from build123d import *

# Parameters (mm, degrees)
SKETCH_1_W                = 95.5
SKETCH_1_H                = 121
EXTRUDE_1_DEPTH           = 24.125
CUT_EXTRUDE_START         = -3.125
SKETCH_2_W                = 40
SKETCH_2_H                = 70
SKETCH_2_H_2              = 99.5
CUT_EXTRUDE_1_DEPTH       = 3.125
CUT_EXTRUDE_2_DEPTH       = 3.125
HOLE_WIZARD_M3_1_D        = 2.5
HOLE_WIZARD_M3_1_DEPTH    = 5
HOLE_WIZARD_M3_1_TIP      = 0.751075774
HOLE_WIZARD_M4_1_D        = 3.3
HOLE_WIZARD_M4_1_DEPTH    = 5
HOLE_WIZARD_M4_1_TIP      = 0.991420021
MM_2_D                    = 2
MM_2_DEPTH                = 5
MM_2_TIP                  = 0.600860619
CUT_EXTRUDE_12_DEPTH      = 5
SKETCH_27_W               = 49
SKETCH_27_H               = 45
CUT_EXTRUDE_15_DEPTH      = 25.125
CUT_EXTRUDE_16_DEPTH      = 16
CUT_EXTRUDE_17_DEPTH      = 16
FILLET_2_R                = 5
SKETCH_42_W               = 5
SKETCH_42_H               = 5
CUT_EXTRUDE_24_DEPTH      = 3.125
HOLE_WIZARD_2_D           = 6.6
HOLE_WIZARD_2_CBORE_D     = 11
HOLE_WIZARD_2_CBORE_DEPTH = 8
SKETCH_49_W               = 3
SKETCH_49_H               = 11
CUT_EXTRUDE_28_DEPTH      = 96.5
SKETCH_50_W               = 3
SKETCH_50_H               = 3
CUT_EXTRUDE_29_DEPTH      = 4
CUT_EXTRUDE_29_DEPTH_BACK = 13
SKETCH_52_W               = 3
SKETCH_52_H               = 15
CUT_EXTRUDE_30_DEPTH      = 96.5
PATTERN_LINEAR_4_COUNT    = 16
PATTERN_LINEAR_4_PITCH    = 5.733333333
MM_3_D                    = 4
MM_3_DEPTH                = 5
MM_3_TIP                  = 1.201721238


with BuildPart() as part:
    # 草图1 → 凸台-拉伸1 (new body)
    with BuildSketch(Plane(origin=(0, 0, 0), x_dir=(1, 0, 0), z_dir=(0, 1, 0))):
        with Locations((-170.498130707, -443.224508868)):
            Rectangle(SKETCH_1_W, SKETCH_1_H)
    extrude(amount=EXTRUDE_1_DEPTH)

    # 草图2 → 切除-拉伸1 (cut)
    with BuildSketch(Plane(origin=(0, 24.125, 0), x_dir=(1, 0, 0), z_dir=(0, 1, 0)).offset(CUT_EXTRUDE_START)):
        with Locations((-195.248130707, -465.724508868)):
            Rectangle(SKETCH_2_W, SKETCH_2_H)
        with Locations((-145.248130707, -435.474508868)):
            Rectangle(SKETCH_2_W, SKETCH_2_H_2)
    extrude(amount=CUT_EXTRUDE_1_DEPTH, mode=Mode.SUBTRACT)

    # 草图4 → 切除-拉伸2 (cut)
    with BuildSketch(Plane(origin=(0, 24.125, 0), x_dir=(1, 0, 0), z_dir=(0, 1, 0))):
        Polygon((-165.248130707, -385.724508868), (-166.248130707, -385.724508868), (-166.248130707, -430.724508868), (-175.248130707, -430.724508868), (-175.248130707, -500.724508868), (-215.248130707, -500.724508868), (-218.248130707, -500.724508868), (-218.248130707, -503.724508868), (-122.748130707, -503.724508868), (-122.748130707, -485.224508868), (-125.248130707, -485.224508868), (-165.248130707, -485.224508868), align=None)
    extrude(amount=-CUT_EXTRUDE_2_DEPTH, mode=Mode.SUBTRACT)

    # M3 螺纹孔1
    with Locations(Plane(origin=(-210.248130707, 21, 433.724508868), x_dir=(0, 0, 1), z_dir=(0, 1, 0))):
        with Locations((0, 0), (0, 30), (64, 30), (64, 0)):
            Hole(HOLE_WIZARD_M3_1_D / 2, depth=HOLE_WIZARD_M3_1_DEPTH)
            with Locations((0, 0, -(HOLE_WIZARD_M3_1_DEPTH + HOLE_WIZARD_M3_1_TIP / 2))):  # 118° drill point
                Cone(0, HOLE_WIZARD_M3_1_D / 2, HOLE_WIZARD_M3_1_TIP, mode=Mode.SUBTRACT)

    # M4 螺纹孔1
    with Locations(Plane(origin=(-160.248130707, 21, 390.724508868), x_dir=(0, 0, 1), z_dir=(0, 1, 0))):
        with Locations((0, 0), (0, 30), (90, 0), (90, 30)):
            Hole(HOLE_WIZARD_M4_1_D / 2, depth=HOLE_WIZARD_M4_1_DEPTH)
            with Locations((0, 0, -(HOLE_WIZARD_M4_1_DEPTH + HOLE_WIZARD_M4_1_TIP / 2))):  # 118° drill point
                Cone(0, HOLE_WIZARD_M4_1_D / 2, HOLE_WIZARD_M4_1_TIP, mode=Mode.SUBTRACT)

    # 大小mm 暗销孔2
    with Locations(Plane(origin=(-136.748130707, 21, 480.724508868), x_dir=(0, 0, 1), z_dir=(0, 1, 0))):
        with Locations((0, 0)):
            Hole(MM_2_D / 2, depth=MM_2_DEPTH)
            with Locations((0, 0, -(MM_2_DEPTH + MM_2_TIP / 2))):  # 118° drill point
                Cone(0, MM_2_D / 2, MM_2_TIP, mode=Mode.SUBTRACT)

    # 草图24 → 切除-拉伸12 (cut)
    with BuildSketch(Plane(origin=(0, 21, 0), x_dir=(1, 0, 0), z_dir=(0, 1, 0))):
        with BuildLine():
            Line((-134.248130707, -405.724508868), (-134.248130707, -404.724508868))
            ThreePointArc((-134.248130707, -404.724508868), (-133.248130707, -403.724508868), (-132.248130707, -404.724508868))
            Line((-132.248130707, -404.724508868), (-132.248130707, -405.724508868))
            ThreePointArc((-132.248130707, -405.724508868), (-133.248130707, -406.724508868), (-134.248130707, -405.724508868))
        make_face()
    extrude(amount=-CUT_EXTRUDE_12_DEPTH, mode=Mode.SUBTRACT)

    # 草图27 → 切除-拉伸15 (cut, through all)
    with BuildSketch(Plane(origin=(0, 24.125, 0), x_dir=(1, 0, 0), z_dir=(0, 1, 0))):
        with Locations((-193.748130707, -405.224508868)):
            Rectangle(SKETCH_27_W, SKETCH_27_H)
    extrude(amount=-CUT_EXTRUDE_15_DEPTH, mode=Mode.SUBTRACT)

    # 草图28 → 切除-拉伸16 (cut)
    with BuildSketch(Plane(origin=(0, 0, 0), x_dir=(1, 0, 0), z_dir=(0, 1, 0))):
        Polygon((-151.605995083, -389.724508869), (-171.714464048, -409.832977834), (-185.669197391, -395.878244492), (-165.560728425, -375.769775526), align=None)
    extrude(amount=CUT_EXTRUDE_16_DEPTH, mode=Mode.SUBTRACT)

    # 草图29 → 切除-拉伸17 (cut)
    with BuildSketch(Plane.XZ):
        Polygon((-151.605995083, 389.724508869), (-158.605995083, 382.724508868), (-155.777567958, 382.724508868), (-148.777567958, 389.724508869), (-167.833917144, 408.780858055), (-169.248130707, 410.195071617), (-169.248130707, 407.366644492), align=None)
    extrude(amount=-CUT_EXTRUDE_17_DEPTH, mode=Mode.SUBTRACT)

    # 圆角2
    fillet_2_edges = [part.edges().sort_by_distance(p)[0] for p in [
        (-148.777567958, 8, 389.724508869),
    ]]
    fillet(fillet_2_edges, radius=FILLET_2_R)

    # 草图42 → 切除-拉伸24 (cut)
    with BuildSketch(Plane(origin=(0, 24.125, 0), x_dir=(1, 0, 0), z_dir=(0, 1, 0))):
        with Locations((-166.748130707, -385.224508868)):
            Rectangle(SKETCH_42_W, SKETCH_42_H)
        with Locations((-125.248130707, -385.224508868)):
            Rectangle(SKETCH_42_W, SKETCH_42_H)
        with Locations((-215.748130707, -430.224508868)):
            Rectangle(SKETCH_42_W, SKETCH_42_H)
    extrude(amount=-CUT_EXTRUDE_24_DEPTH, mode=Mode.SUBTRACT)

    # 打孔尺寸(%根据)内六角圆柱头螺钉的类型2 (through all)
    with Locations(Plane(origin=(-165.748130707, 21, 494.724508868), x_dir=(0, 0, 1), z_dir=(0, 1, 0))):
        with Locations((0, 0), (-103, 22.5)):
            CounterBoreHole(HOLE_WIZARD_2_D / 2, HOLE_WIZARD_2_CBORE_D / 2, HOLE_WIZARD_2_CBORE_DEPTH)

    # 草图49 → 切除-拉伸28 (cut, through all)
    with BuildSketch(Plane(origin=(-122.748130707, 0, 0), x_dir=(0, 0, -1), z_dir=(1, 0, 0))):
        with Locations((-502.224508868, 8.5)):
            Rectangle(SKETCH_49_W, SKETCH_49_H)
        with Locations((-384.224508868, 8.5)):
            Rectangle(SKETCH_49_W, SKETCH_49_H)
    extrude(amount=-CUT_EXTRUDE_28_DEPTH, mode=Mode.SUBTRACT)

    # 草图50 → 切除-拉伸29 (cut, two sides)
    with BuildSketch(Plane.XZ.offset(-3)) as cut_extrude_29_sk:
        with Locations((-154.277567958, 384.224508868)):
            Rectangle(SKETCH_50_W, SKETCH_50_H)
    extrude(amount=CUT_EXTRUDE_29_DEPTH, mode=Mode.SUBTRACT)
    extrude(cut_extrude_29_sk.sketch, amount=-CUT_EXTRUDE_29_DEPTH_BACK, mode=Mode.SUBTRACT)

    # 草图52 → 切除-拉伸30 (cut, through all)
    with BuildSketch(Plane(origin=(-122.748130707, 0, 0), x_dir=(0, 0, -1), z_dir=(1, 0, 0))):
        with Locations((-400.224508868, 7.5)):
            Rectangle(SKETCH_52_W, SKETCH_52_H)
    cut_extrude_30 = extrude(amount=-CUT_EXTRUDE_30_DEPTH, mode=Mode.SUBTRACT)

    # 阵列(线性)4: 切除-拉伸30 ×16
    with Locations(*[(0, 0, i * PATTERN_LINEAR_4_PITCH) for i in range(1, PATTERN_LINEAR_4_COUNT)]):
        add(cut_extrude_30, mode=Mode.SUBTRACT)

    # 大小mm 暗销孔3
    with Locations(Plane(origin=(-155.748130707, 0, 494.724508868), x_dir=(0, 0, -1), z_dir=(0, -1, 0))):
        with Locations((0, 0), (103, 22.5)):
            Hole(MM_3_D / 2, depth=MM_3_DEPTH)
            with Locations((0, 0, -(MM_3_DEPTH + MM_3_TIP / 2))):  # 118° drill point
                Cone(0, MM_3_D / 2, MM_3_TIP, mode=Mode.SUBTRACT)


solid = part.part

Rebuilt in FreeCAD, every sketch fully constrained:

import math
import FreeCAD as App
import Part
import Sketcher
from FreeCAD import Vector
Q = App.Units.Quantity


def edges_at(feature, points):
    """Names of the edges that pass closest to the given points."""
    edges = feature.Shape.Edges
    near = lambda p: min(range(len(edges)), key=lambda i: edges[i].distToShape(Part.Vertex(*p))[0])
    return sorted({f"Edge{near(p) + 1}" for p in points})

doc = App.newDocument("Part")
body = doc.addObject("PartDesign::Body", "Body")

sketch1 = body.newObject("Sketcher::SketchObject", "Sketch")
sketch1.AttachmentSupport = (doc.getObject("XZ_Plane"), [""])
sketch1.MapMode = "FlatFace"
sketch1.addGeometry(Part.LineSegment(Vector(-218, 383, 0), Vector(-218, 504, 0)), False)
sketch1.addGeometry(Part.LineSegment(Vector(-218, 504, 0), Vector(-123, 504, 0)), False)
sketch1.addGeometry(Part.LineSegment(Vector(-123, 504, 0), Vector(-123, 383, 0)), False)
sketch1.addGeometry(Part.LineSegment(Vector(-123, 383, 0), Vector(-218, 383, 0)), False)
sketch1.addConstraint(Sketcher.Constraint("Coincident", 0, 2, 1, 1))
sketch1.addConstraint(Sketcher.Constraint("Coincident", 1, 2, 2, 1))
sketch1.addConstraint(Sketcher.Constraint("Coincident", 2, 2, 3, 1))
sketch1.addConstraint(Sketcher.Constraint("Coincident", 3, 2, 0, 1))
sketch1.addConstraint(Sketcher.Constraint("Vertical", 0))
sketch1.addConstraint(Sketcher.Constraint("Horizontal", 1))
sketch1.addConstraint(Sketcher.Constraint("Vertical", 2))
sketch1.addConstraint(Sketcher.Constraint("Horizontal", 3))
sketch1.addConstraint(Sketcher.Constraint("DistanceY", 0, 1, 0, 2, Q("121 mm")))
sketch1.addConstraint(Sketcher.Constraint("DistanceX", 1, 1, 1, 2, Q("95.5 mm")))
sketch1.addConstraint(Sketcher.Constraint("DistanceX", 0, 2, -1, 1, Q("218.248131 mm")))
sketch1.addConstraint(Sketcher.Constraint("DistanceY", -1, 1, 0, 2, Q("503.724509 mm")))
pad1 = body.newObject("PartDesign::Pad", "Pad")
pad1.Profile = sketch1
pad1.Length = 24.125
pad1.Reversed = True

sketch2 = body.newObject("Sketcher::SketchObject", "Sketch001")
sketch2.AttachmentSupport = (doc.getObject("XZ_Plane"), [""])
sketch2.MapMode = "FlatFace"
sketch2.AttachmentOffset = App.Placement(Vector(0, 0, -21), App.Rotation())
sketch2.addGeometry(Part.LineSegment(Vector(-215, 431, 0), Vector(-215, 501, 0)), False)
sketch2.addGeometry(Part.LineSegment(Vector(-215, 501, 0), Vector(-175, 501, 0)), False)
sketch2.addGeometry(Part.LineSegment(Vector(-175, 501, 0), Vector(-175, 431, 0)), False)
sketch2.addGeometry(Part.LineSegment(Vector(-175, 431, 0), Vector(-215, 431, 0)), False)
sketch2.addGeometry(Part.LineSegment(Vector(-165, 386, 0), Vector(-165, 485, 0)), False)
sketch2.addGeometry(Part.LineSegment(Vector(-165, 485, 0), Vector(-125, 485, 0)), False)
sketch2.addGeometry(Part.LineSegment(Vector(-125, 485, 0), Vector(-125, 386, 0)), False)
sketch2.addGeometry(Part.LineSegment(Vector(-125, 386, 0), Vector(-165, 386, 0)), False)
sketch2.addConstraint(Sketcher.Constraint("Coincident", 0, 2, 1, 1))
sketch2.addConstraint(Sketcher.Constraint("Coincident", 1, 2, 2, 1))
sketch2.addConstraint(Sketcher.Constraint("Coincident", 2, 2, 3, 1))
sketch2.addConstraint(Sketcher.Constraint("Coincident", 3, 2, 0, 1))
sketch2.addConstraint(Sketcher.Constraint("Coincident", 4, 2, 5, 1))
sketch2.addConstraint(Sketcher.Constraint("Coincident", 5, 2, 6, 1))
sketch2.addConstraint(Sketcher.Constraint("Coincident", 6, 2, 7, 1))
sketch2.addConstraint(Sketcher.Constraint("Coincident", 7, 2, 4, 1))
sketch2.addConstraint(Sketcher.Constraint("Vertical", 0))
sketch2.addConstraint(Sketcher.Constraint("Horizontal", 1))
sketch2.addConstraint(Sketcher.Constraint("Vertical", 2))
sketch2.addConstraint(Sketcher.Constraint("Horizontal", 3))
sketch2.addConstraint(Sketcher.Constraint("Vertical", 4))
sketch2.addConstraint(Sketcher.Constraint("Horizontal", 5))
sketch2.addConstraint(Sketcher.Constraint("Vertical", 6))
sketch2.addConstraint(Sketcher.Constraint("Horizontal", 7))
sketch2.addConstraint(Sketcher.Constraint("Equal", 3, 5))
sketch2.addConstraint(Sketcher.Constraint("DistanceX", 1, 1, 1, 2, Q("40 mm")))
sketch2.addConstraint(Sketcher.Constraint("DistanceY", 0, 1, 0, 2, Q("70 mm")))
sketch2.addConstraint(Sketcher.Constraint("DistanceY", 4, 1, 4, 2, Q("99.5 mm")))
sketch2.addConstraint(Sketcher.Constraint("DistanceX", 1, 2, 4, 2, Q("10 mm")))
sketch2.addConstraint(Sketcher.Constraint("DistanceY", 6, 2, 2, 2, Q("45 mm")))
sketch2.addConstraint(Sketcher.Constraint("DistanceX", 0, 2, -1, 1, Q("215.248131 mm")))
sketch2.addConstraint(Sketcher.Constraint("DistanceY", -1, 1, 0, 2, Q("500.724509 mm")))
pocket1 = body.newObject("PartDesign::Pocket", "Pocket")
pocket1.Profile = sketch2
pocket1.Length = 3.125

sketch3 = body.newObject("Sketcher::SketchObject", "Sketch002")
sketch3.AttachmentSupport = (doc.getObject("XZ_Plane"), [""])
sketch3.MapMode = "FlatFace"
sketch3.AttachmentOffset = App.Placement(Vector(0, 0, -24.125), App.Rotation())
sketch3.addGeometry(Part.LineSegment(Vector(-165.2, 385.7, 0), Vector(-166.2, 385.7, 0)), False)
sketch3.addGeometry(Part.LineSegment(Vector(-166.2, 385.7, 0), Vector(-166.2, 430.7, 0)), False)
sketch3.addGeometry(Part.LineSegment(Vector(-166.2, 430.7, 0), Vector(-175.2, 430.7, 0)), False)
sketch3.addGeometry(Part.LineSegment(Vector(-175.2, 430.7, 0), Vector(-175.2, 500.7, 0)), False)
sketch3.addGeometry(Part.LineSegment(Vector(-175.2, 500.7, 0), Vector(-218.2, 500.7, 0)), False)
sketch3.addGeometry(Part.LineSegment(Vector(-218.2, 500.7, 0), Vector(-218.2, 503.7, 0)), False)
sketch3.addGeometry(Part.LineSegment(Vector(-218.2, 503.7, 0), Vector(-122.7, 503.7, 0)), False)
sketch3.addGeometry(Part.LineSegment(Vector(-122.7, 503.7, 0), Vector(-122.7, 485.2, 0)), False)
sketch3.addGeometry(Part.LineSegment(Vector(-122.7, 485.2, 0), Vector(-165.2, 485.2, 0)), False)
sketch3.addGeometry(Part.LineSegment(Vector(-165.2, 485.2, 0), Vector(-165.2, 385.7, 0)), False)
sketch3.addConstraint(Sketcher.Constraint("Coincident", 0, 2, 1, 1))
sketch3.addConstraint(Sketcher.Constraint("Coincident", 1, 2, 2, 1))
sketch3.addConstraint(Sketcher.Constraint("Coincident", 2, 2, 3, 1))
sketch3.addConstraint(Sketcher.Constraint("Coincident", 3, 2, 4, 1))
sketch3.addConstraint(Sketcher.Constraint("Coincident", 4, 2, 5, 1))
sketch3.addConstraint(Sketcher.Constraint("Coincident", 5, 2, 6, 1))
sketch3.addConstraint(Sketcher.Constraint("Coincident", 6, 2, 7, 1))
sketch3.addConstraint(Sketcher.Constraint("Coincident", 7, 2, 8, 1))
sketch3.addConstraint(Sketcher.Constraint("Coincident", 8, 2, 9, 1))
sketch3.addConstraint(Sketcher.Constraint("Coincident", 9, 2, 0, 1))
sketch3.addConstraint(Sketcher.Constraint("Horizontal", 0))
sketch3.addConstraint(Sketcher.Constraint("Vertical", 1))
sketch3.addConstraint(Sketcher.Constraint("Horizontal", 2))
sketch3.addConstraint(Sketcher.Constraint("Vertical", 3))
sketch3.addConstraint(Sketcher.Constraint("Horizontal", 4))
sketch3.addConstraint(Sketcher.Constraint("Vertical", 5))
sketch3.addConstraint(Sketcher.Constraint("Horizontal", 6))
sketch3.addConstraint(Sketcher.Constraint("Vertical", 7))
sketch3.addConstraint(Sketcher.Constraint("Horizontal", 8))
sketch3.addConstraint(Sketcher.Constraint("Vertical", 9))
sketch3.addConstraint(Sketcher.Constraint("DistanceX", 0, 2, 0, 1, Q("1 mm")))
sketch3.addConstraint(Sketcher.Constraint("DistanceX", 2, 2, 2, 1, Q("9 mm")))
sketch3.addConstraint(Sketcher.Constraint("DistanceX", 4, 2, 4, 1, Q("43 mm")))
sketch3.addConstraint(Sketcher.Constraint("DistanceY", 1, 1, 1, 2, Q("45 mm")))
sketch3.addConstraint(Sketcher.Constraint("DistanceY", 3, 1, 3, 2, Q("70 mm")))
sketch3.addConstraint(Sketcher.Constraint("DistanceY", 5, 1, 5, 2, Q("3 mm")))
sketch3.addConstraint(Sketcher.Constraint("DistanceX", 6, 1, 6, 2, Q("95.5 mm")))
sketch3.addConstraint(Sketcher.Constraint("DistanceY", 7, 2, 7, 1, Q("18.5 mm")))
sketch3.addConstraint(Sketcher.Constraint("DistanceX", 0, 2, -1, 1, Q("166.248131 mm")))
sketch3.addConstraint(Sketcher.Constraint("DistanceY", -1, 1, 0, 2, Q("385.724509 mm")))
pocket2 = body.newObject("PartDesign::Pocket", "Pocket001")
pocket2.Profile = sketch3
pocket2.Length = 3.125
pocket2.Reversed = True

sketch4 = body.newObject("Sketcher::SketchObject", "Sketch003")
sketch4.AttachmentSupport = (doc.getObject("XZ_Plane"), [""])
sketch4.MapMode = "FlatFace"
sketch4.AttachmentOffset = App.Placement(Vector(0, 0, -21), App.Rotation())
sketch4.addGeometry(Part.Circle(Vector(-210.2, 433.7, 0), Vector(0, 0, 1), 1.2), False)
sketch4.addGeometry(Part.Circle(Vector(-180.2, 433.7, 0), Vector(0, 0, 1), 1.2), False)
sketch4.addGeometry(Part.Circle(Vector(-180.2, 497.7, 0), Vector(0, 0, 1), 1.2), False)
sketch4.addGeometry(Part.Circle(Vector(-210.2, 497.7, 0), Vector(0, 0, 1), 1.2), False)
sketch4.addConstraint(Sketcher.Constraint("Equal", 0, 1))
sketch4.addConstraint(Sketcher.Constraint("Equal", 1, 2))
sketch4.addConstraint(Sketcher.Constraint("Equal", 2, 3))
sketch4.addConstraint(Sketcher.Constraint("Horizontal", 0, 3, 1, 3))
sketch4.addConstraint(Sketcher.Constraint("Horizontal", 2, 3, 3, 3))
sketch4.addConstraint(Sketcher.Constraint("Vertical", 1, 3, 2, 3))
sketch4.addConstraint(Sketcher.Constraint("Vertical", 0, 3, 3, 3))
sketch4.addConstraint(Sketcher.Constraint("Diameter", 0, Q("2.5 mm")))
sketch4.addConstraint(Sketcher.Constraint("DistanceX", 0, 3, 1, 3, Q("30 mm")))
sketch4.addConstraint(Sketcher.Constraint("DistanceY", 1, 3, 2, 3, Q("64 mm")))
sketch4.addConstraint(Sketcher.Constraint("DistanceX", 0, 3, -1, 1, Q("210.248131 mm")))
sketch4.addConstraint(Sketcher.Constraint("DistanceY", -1, 1, 0, 3, Q("433.724509 mm")))
doc.recompute()
hole = body.newObject("PartDesign::Hole", "Hole")
hole.Profile = sketch4
hole.ThreadType = "None"
hole.Diameter = 2.5
hole.DepthType = "Dimension"
hole.Depth = 5
hole.DrillPoint = "Angled"
hole.DrillPointAngle = 118
hole.Reversed = True

sketch5 = body.newObject("Sketcher::SketchObject", "Sketch004")
sketch5.AttachmentSupport = (doc.getObject("XZ_Plane"), [""])
sketch5.MapMode = "FlatFace"
sketch5.AttachmentOffset = App.Placement(Vector(0, 0, -21), App.Rotation())
sketch5.addGeometry(Part.Circle(Vector(-160.2, 390.7, 0), Vector(0, 0, 1), 1.6), False)
sketch5.addGeometry(Part.Circle(Vector(-130.2, 390.7, 0), Vector(0, 0, 1), 1.6), False)
sketch5.addGeometry(Part.Circle(Vector(-160.2, 480.7, 0), Vector(0, 0, 1), 1.6), False)
sketch5.addGeometry(Part.Circle(Vector(-130.2, 480.7, 0), Vector(0, 0, 1), 1.6), False)
sketch5.addConstraint(Sketcher.Constraint("Equal", 0, 1))
sketch5.addConstraint(Sketcher.Constraint("Equal", 1, 2))
sketch5.addConstraint(Sketcher.Constraint("Equal", 2, 3))
sketch5.addConstraint(Sketcher.Constraint("Horizontal", 0, 3, 1, 3))
sketch5.addConstraint(Sketcher.Constraint("Horizontal", 2, 3, 3, 3))
sketch5.addConstraint(Sketcher.Constraint("Vertical", 0, 3, 2, 3))
sketch5.addConstraint(Sketcher.Constraint("Vertical", 1, 3, 3, 3))
sketch5.addConstraint(Sketcher.Constraint("Diameter", 0, Q("3.3 mm")))
sketch5.addConstraint(Sketcher.Constraint("DistanceX", 0, 3, 1, 3, Q("30 mm")))
sketch5.addConstraint(Sketcher.Constraint("DistanceY", 0, 3, 2, 3, Q("90 mm")))
sketch5.addConstraint(Sketcher.Constraint("DistanceX", 0, 3, -1, 1, Q("160.248131 mm")))
sketch5.addConstraint(Sketcher.Constraint("DistanceY", -1, 1, 0, 3, Q("390.724509 mm")))
doc.recompute()
hole2 = body.newObject("PartDesign::Hole", "Hole001")
hole2.Profile = sketch5
hole2.ThreadType = "None"
hole2.Diameter = 3.3
hole2.DepthType = "Dimension"
hole2.Depth = 5
hole2.DrillPoint = "Angled"
hole2.DrillPointAngle = 118
hole2.Reversed = True

sketch6 = body.newObject("Sketcher::SketchObject", "Sketch005")
sketch6.AttachmentSupport = (doc.getObject("XZ_Plane"), [""])
sketch6.MapMode = "FlatFace"
sketch6.AttachmentOffset = App.Placement(Vector(0, 0, -21), App.Rotation())
sketch6.addGeometry(Part.Circle(Vector(-136.7, 480.7, 0), Vector(0, 0, 1), 1), False)
sketch6.addConstraint(Sketcher.Constraint("Diameter", 0, Q("2 mm")))
sketch6.addConstraint(Sketcher.Constraint("DistanceX", 0, 3, -1, 1, Q("136.748131 mm")))
sketch6.addConstraint(Sketcher.Constraint("DistanceY", -1, 1, 0, 3, Q("480.724509 mm")))
doc.recompute()
hole3 = body.newObject("PartDesign::Hole", "Hole002")
hole3.Profile = sketch6
hole3.ThreadType = "None"
hole3.Diameter = 2
hole3.DepthType = "Dimension"
hole3.Depth = 5
hole3.DrillPoint = "Angled"
hole3.DrillPointAngle = 118
hole3.Reversed = True

sketch7 = body.newObject("Sketcher::SketchObject", "Sketch006")
sketch7.AttachmentSupport = (doc.getObject("XZ_Plane"), [""])
sketch7.MapMode = "FlatFace"
sketch7.AttachmentOffset = App.Placement(Vector(0, 0, -21), App.Rotation())
sketch7.addGeometry(Part.LineSegment(Vector(-134.2, 404.7, 0), Vector(-134.2, 405.7, 0)), False)
sketch7.addGeometry(Part.ArcOfCircle(Part.Circle(Vector(-133.2, 405.7, 0), Vector(0, 0, 1), 1), math.radians(0), math.radians(180)), False)
sketch7.addGeometry(Part.LineSegment(Vector(-132.2, 405.7, 0), Vector(-132.2, 404.7, 0)), False)
sketch7.addGeometry(Part.ArcOfCircle(Part.Circle(Vector(-133.2, 404.7, 0), Vector(0, 0, 1), 1), math.radians(180), math.radians(360)), False)
sketch7.addConstraint(Sketcher.Constraint("Tangent", 0, 2, 1, 2))
sketch7.addConstraint(Sketcher.Constraint("Tangent", 1, 1, 2, 1))
sketch7.addConstraint(Sketcher.Constraint("Tangent", 2, 2, 3, 2))
sketch7.addConstraint(Sketcher.Constraint("Tangent", 3, 1, 0, 1))
sketch7.addConstraint(Sketcher.Constraint("Vertical", 0))
sketch7.addConstraint(Sketcher.Constraint("Vertical", 2))
sketch7.addConstraint(Sketcher.Constraint("Radius", 1, Q("1 mm")))
sketch7.addConstraint(Sketcher.Constraint("DistanceY", 0, 1, 0, 2, Q("1 mm")))
sketch7.addConstraint(Sketcher.Constraint("DistanceX", 1, 3, -1, 1, Q("133.248131 mm")))
sketch7.addConstraint(Sketcher.Constraint("DistanceY", -1, 1, 1, 3, Q("405.724509 mm")))
pocket3 = body.newObject("PartDesign::Pocket", "Pocket002")
pocket3.Profile = sketch7
pocket3.Length = 5
pocket3.Reversed = True

sketch8 = body.newObject("Sketcher::SketchObject", "Sketch007")
sketch8.AttachmentSupport = (doc.getObject("XZ_Plane"), [""])
sketch8.MapMode = "FlatFace"
sketch8.AttachmentOffset = App.Placement(Vector(0, 0, -24.125), App.Rotation())
sketch8.addGeometry(Part.LineSegment(Vector(-218, 383, 0), Vector(-218, 428, 0)), False)
sketch8.addGeometry(Part.LineSegment(Vector(-218, 428, 0), Vector(-169, 428, 0)), False)
sketch8.addGeometry(Part.LineSegment(Vector(-169, 428, 0), Vector(-169, 383, 0)), False)
sketch8.addGeometry(Part.LineSegment(Vector(-169, 383, 0), Vector(-218, 383, 0)), False)
sketch8.addConstraint(Sketcher.Constraint("Coincident", 0, 2, 1, 1))
sketch8.addConstraint(Sketcher.Constraint("Coincident", 1, 2, 2, 1))
sketch8.addConstraint(Sketcher.Constraint("Coincident", 2, 2, 3, 1))
sketch8.addConstraint(Sketcher.Constraint("Coincident", 3, 2, 0, 1))
sketch8.addConstraint(Sketcher.Constraint("Vertical", 0))
sketch8.addConstraint(Sketcher.Constraint("Horizontal", 1))
sketch8.addConstraint(Sketcher.Constraint("Vertical", 2))
sketch8.addConstraint(Sketcher.Constraint("Horizontal", 3))
sketch8.addConstraint(Sketcher.Constraint("DistanceX", 1, 1, 1, 2, Q("49 mm")))
sketch8.addConstraint(Sketcher.Constraint("DistanceY", 0, 1, 0, 2, Q("45 mm")))
sketch8.addConstraint(Sketcher.Constraint("DistanceX", 0, 2, -1, 1, Q("218.248131 mm")))
sketch8.addConstraint(Sketcher.Constraint("DistanceY", -1, 1, 0, 2, Q("427.724509 mm")))
pocket4 = body.newObject("PartDesign::Pocket", "Pocket003")
pocket4.Profile = sketch8
pocket4.Type = "ThroughAll"
pocket4.Reversed = True

sketch9 = body.newObject("Sketcher::SketchObject", "Sketch008")
sketch9.AttachmentSupport = (doc.getObject("XZ_Plane"), [""])
sketch9.MapMode = "FlatFace"
sketch9.addGeometry(Part.LineSegment(Vector(-172, 410, 0), Vector(-152, 390, 0)), False)
sketch9.addGeometry(Part.LineSegment(Vector(-152, 390, 0), Vector(-166, 376, 0)), False)
sketch9.addGeometry(Part.LineSegment(Vector(-166, 376, 0), Vector(-186, 396, 0)), False)
sketch9.addGeometry(Part.LineSegment(Vector(-186, 396, 0), Vector(-172, 410, 0)), False)
sketch9.addConstraint(Sketcher.Constraint("Coincident", 0, 2, 1, 1))
sketch9.addConstraint(Sketcher.Constraint("Coincident", 1, 2, 2, 1))
sketch9.addConstraint(Sketcher.Constraint("Coincident", 2, 2, 3, 1))
sketch9.addConstraint(Sketcher.Constraint("Coincident", 3, 2, 0, 1))
sketch9.addConstraint(Sketcher.Constraint("Perpendicular", 0, 1))
sketch9.addConstraint(Sketcher.Constraint("Perpendicular", 1, 2))
sketch9.addConstraint(Sketcher.Constraint("Perpendicular", 2, 3))
sketch9.addConstraint(Sketcher.Constraint("Angle", 0, Q("-45 deg")))
sketch9.addConstraint(Sketcher.Constraint("Distance", 0, Q("28.43767 mm")))
sketch9.addConstraint(Sketcher.Constraint("DistanceY", -1, 1, 0, 2, Q("389.724509 mm")))
sketch9.addConstraint(Sketcher.Constraint("DistanceX", 1, 2, -1, 1, Q("165.560728 mm")))
sketch9.addConstraint(Sketcher.Constraint("Distance", 1, Q("19.734973 mm")))
pocket5 = body.newObject("PartDesign::Pocket", "Pocket004")
pocket5.Profile = sketch9
pocket5.Length = 16

sketch10 = body.newObject("Sketcher::SketchObject", "Sketch009")
sketch10.AttachmentSupport = (doc.getObject("XZ_Plane"), [""])
sketch10.MapMode = "FlatFace"
sketch10.addGeometry(Part.LineSegment(Vector(-151.6, 389.7, 0), Vector(-158.6, 382.7, 0)), False)
sketch10.addGeometry(Part.LineSegment(Vector(-158.6, 382.7, 0), Vector(-155.8, 382.7, 0)), False)
sketch10.addGeometry(Part.LineSegment(Vector(-155.8, 382.7, 0), Vector(-148.8, 389.7, 0)), False)
sketch10.addGeometry(Part.LineSegment(Vector(-148.8, 389.7, 0), Vector(-167.8, 408.8, 0)), False)
sketch10.addGeometry(Part.LineSegment(Vector(-167.8, 408.8, 0), Vector(-169.2, 410.2, 0)), False)
sketch10.addGeometry(Part.LineSegment(Vector(-169.2, 410.2, 0), Vector(-169.2, 407.4, 0)), False)
sketch10.addGeometry(Part.LineSegment(Vector(-169.2, 407.4, 0), Vector(-151.6, 389.7, 0)), False)
sketch10.addConstraint(Sketcher.Constraint("Coincident", 0, 2, 1, 1))
sketch10.addConstraint(Sketcher.Constraint("Coincident", 1, 2, 2, 1))
sketch10.addConstraint(Sketcher.Constraint("Coincident", 2, 2, 3, 1))
sketch10.addConstraint(Sketcher.Constraint("Coincident", 3, 2, 4, 1))
sketch10.addConstraint(Sketcher.Constraint("Coincident", 4, 2, 5, 1))
sketch10.addConstraint(Sketcher.Constraint("Coincident", 5, 2, 6, 1))
sketch10.addConstraint(Sketcher.Constraint("Coincident", 6, 2, 0, 1))
sketch10.addConstraint(Sketcher.Constraint("Horizontal", 1))
sketch10.addConstraint(Sketcher.Constraint("Vertical", 5))
sketch10.addConstraint(Sketcher.Constraint("Parallel", 0, 2))
sketch10.addConstraint(Sketcher.Constraint("Perpendicular", 2, 3))
sketch10.addConstraint(Sketcher.Constraint("Parallel", 3, 4))
sketch10.addConstraint(Sketcher.Constraint("Parallel", 4, 6))
sketch10.addConstraint(Sketcher.Constraint("Horizontal", 2, 2, 6, 2))
sketch10.addConstraint(Sketcher.Constraint("Equal", 1, 5))
sketch10.addConstraint(Sketcher.Constraint("Distance", 4, Q("2 mm")))
sketch10.addConstraint(Sketcher.Constraint("DistanceX", 1, 2, 2, 2, Q("7 mm")))
sketch10.addConstraint(Sketcher.Constraint("DistanceX", 1, 1, 1, 2, Q("2.828427 mm")))
sketch10.addConstraint(Sketcher.Constraint("DistanceY", -1, 1, 0, 2, Q("382.724509 mm")))
sketch10.addConstraint(Sketcher.Constraint("DistanceY", -1, 1, 3, 2, Q("408.780858 mm")))
sketch10.addConstraint(Sketcher.Constraint("DistanceX", 4, 2, -1, 1, Q("169.248131 mm")))
pocket6 = body.newObject("PartDesign::Pocket", "Pocket005")
pocket6.Profile = sketch10
pocket6.Length = 16
doc.recompute()

fillet = body.newObject("PartDesign::Fillet", "Fillet")
fillet.Base = (pocket6, edges_at(pocket6, [(-148.778, 8, 389.725)]))
fillet.Radius = 5

sketch11 = body.newObject("Sketcher::SketchObject", "Sketch010")
sketch11.AttachmentSupport = (doc.getObject("XZ_Plane"), [""])
sketch11.MapMode = "FlatFace"
sketch11.AttachmentOffset = App.Placement(Vector(0, 0, -24.125), App.Rotation())
sketch11.addGeometry(Part.LineSegment(Vector(-169, 383, 0), Vector(-169, 388, 0)), False)
sketch11.addGeometry(Part.LineSegment(Vector(-169, 388, 0), Vector(-164, 388, 0)), False)
sketch11.addGeometry(Part.LineSegment(Vector(-164, 388, 0), Vector(-164, 383, 0)), False)
sketch11.addGeometry(Part.LineSegment(Vector(-164, 383, 0), Vector(-169, 383, 0)), False)
sketch11.addGeometry(Part.LineSegment(Vector(-128, 383, 0), Vector(-128, 388, 0)), False)
sketch11.addGeometry(Part.LineSegment(Vector(-128, 388, 0), Vector(-123, 388, 0)), False)
sketch11.addGeometry(Part.LineSegment(Vector(-123, 388, 0), Vector(-123, 383, 0)), False)
sketch11.addGeometry(Part.LineSegment(Vector(-123, 383, 0), Vector(-128, 383, 0)), False)
sketch11.addGeometry(Part.LineSegment(Vector(-218, 428, 0), Vector(-218, 433, 0)), False)
sketch11.addGeometry(Part.LineSegment(Vector(-218, 433, 0), Vector(-213, 433, 0)), False)
sketch11.addGeometry(Part.LineSegment(Vector(-213, 433, 0), Vector(-213, 428, 0)), False)
sketch11.addGeometry(Part.LineSegment(Vector(-213, 428, 0), Vector(-218, 428, 0)), False)
sketch11.addConstraint(Sketcher.Constraint("Coincident", 0, 2, 1, 1))
sketch11.addConstraint(Sketcher.Constraint("Coincident", 1, 2, 2, 1))
sketch11.addConstraint(Sketcher.Constraint("Coincident", 2, 2, 3, 1))
sketch11.addConstraint(Sketcher.Constraint("Coincident", 3, 2, 0, 1))
sketch11.addConstraint(Sketcher.Constraint("Coincident", 4, 2, 5, 1))
sketch11.addConstraint(Sketcher.Constraint("Coincident", 5, 2, 6, 1))
sketch11.addConstraint(Sketcher.Constraint("Coincident", 6, 2, 7, 1))
sketch11.addConstraint(Sketcher.Constraint("Coincident", 7, 2, 4, 1))
sketch11.addConstraint(Sketcher.Constraint("Coincident", 8, 2, 9, 1))
sketch11.addConstraint(Sketcher.Constraint("Coincident", 9, 2, 10, 1))
sketch11.addConstraint(Sketcher.Constraint("Coincident", 10, 2, 11, 1))
sketch11.addConstraint(Sketcher.Constraint("Coincident", 11, 2, 8, 1))
sketch11.addConstraint(Sketcher.Constraint("Vertical", 0))
sketch11.addConstraint(Sketcher.Constraint("Horizontal", 1))
sketch11.addConstraint(Sketcher.Constraint("Vertical", 2))
sketch11.addConstraint(Sketcher.Constraint("Horizontal", 3))
sketch11.addConstraint(Sketcher.Constraint("Vertical", 4))
sketch11.addConstraint(Sketcher.Constraint("Horizontal", 5))
sketch11.addConstraint(Sketcher.Constraint("Vertical", 6))
sketch11.addConstraint(Sketcher.Constraint("Horizontal", 7))
sketch11.addConstraint(Sketcher.Constraint("Vertical", 8))
sketch11.addConstraint(Sketcher.Constraint("Horizontal", 9))
sketch11.addConstraint(Sketcher.Constraint("Vertical", 10))
sketch11.addConstraint(Sketcher.Constraint("Horizontal", 11))
sketch11.addConstraint(Sketcher.Constraint("Horizontal", 1, 2, 4, 2))
sketch11.addConstraint(Sketcher.Constraint("Horizontal", 3, 2, 6, 2))
sketch11.addConstraint(Sketcher.Constraint("Equal", 3, 5))
sketch11.addConstraint(Sketcher.Constraint("Equal", 7, 9))
sketch11.addConstraint(Sketcher.Constraint("Equal", 11, 0))
sketch11.addConstraint(Sketcher.Constraint("Equal", 6, 8))
sketch11.addConstraint(Sketcher.Constraint("DistanceX", 1, 1, 1, 2, Q("5 mm")))
sketch11.addConstraint(Sketcher.Constraint("DistanceX", 8, 2, 0, 2, Q("49 mm")))
sketch11.addConstraint(Sketcher.Constraint("DistanceY", 0, 2, 8, 2, Q("45 mm")))
sketch11.addConstraint(Sketcher.Constraint("DistanceX", 1, 2, 4, 2, Q("36.5 mm")))
sketch11.addConstraint(Sketcher.Constraint("DistanceX", 0, 2, -1, 1, Q("169.248131 mm")))
sketch11.addConstraint(Sketcher.Constraint("DistanceY", -1, 1, 0, 2, Q("387.724509 mm")))
pocket7 = body.newObject("PartDesign::Pocket", "Pocket006")
pocket7.Profile = sketch11
pocket7.Length = 3.125
pocket7.Reversed = True

sketch12 = body.newObject("Sketcher::SketchObject", "Sketch011")
sketch12.AttachmentSupport = (doc.getObject("XZ_Plane"), [""])
sketch12.MapMode = "FlatFace"
sketch12.AttachmentOffset = App.Placement(Vector(0, 0, -21), App.Rotation())
sketch12.addGeometry(Part.Circle(Vector(-165.7, 494.7, 0), Vector(0, 0, 1), 3.3), False)
sketch12.addGeometry(Part.Circle(Vector(-143.2, 391.7, 0), Vector(0, 0, 1), 3.3), False)
sketch12.addConstraint(Sketcher.Constraint("Equal", 0, 1))
sketch12.addConstraint(Sketcher.Constraint("Diameter", 0, Q("6.6 mm")))
sketch12.addConstraint(Sketcher.Constraint("DistanceY", 1, 3, 0, 3, Q("103 mm")))
sketch12.addConstraint(Sketcher.Constraint("DistanceX", 0, 3, 1, 3, Q("22.5 mm")))
sketch12.addConstraint(Sketcher.Constraint("DistanceX", 0, 3, -1, 1, Q("165.748131 mm")))
sketch12.addConstraint(Sketcher.Constraint("DistanceY", -1, 1, 0, 3, Q("494.724509 mm")))
doc.recompute()
hole4 = body.newObject("PartDesign::Hole", "Hole003")
hole4.Profile = sketch12
hole4.ThreadType = "None"
hole4.Diameter = 6.6
hole4.DepthType = "ThroughAll"
hole4.HoleCutType = "Counterbore"
hole4.HoleCutDiameter = 11
hole4.HoleCutDepth = 8
hole4.Reversed = True

sketch13 = body.newObject("Sketcher::SketchObject", "Sketch012")
sketch13.AttachmentSupport = (doc.getObject("YZ_Plane"), [""])
sketch13.MapMode = "FlatFace"
sketch13.AttachmentOffset = App.Placement(Vector(0, 0, -122.748131), App.Rotation())
sketch13.addGeometry(Part.LineSegment(Vector(14, 503.7, 0), Vector(3, 503.7, 0)), False)
sketch13.addGeometry(Part.LineSegment(Vector(3, 503.7, 0), Vector(3, 500.7, 0)), False)
sketch13.addGeometry(Part.LineSegment(Vector(3, 500.7, 0), Vector(14, 500.7, 0)), False)
sketch13.addGeometry(Part.LineSegment(Vector(14, 500.7, 0), Vector(14, 503.7, 0)), False)
sketch13.addGeometry(Part.LineSegment(Vector(14, 385.7, 0), Vector(3, 385.7, 0)), False)
sketch13.addGeometry(Part.LineSegment(Vector(3, 385.7, 0), Vector(3, 382.7, 0)), False)
sketch13.addGeometry(Part.LineSegment(Vector(3, 382.7, 0), Vector(14, 382.7, 0)), False)
sketch13.addGeometry(Part.LineSegment(Vector(14, 382.7, 0), Vector(14, 385.7, 0)), False)
sketch13.addConstraint(Sketcher.Constraint("Coincident", 0, 2, 1, 1))
sketch13.addConstraint(Sketcher.Constraint("Coincident", 1, 2, 2, 1))
sketch13.addConstraint(Sketcher.Constraint("Coincident", 2, 2, 3, 1))
sketch13.addConstraint(Sketcher.Constraint("Coincident", 3, 2, 0, 1))
sketch13.addConstraint(Sketcher.Constraint("Coincident", 4, 2, 5, 1))
sketch13.addConstraint(Sketcher.Constraint("Coincident", 5, 2, 6, 1))
sketch13.addConstraint(Sketcher.Constraint("Coincident", 6, 2, 7, 1))
sketch13.addConstraint(Sketcher.Constraint("Coincident", 7, 2, 4, 1))
sketch13.addConstraint(Sketcher.Constraint("Horizontal", 0))
sketch13.addConstraint(Sketcher.Constraint("Vertical", 1))
sketch13.addConstraint(Sketcher.Constraint("Horizontal", 2))
sketch13.addConstraint(Sketcher.Constraint("Vertical", 3))
sketch13.addConstraint(Sketcher.Constraint("Horizontal", 4))
sketch13.addConstraint(Sketcher.Constraint("Vertical", 5))
sketch13.addConstraint(Sketcher.Constraint("Horizontal", 6))
sketch13.addConstraint(Sketcher.Constraint("Vertical", 7))
sketch13.addConstraint(Sketcher.Constraint("Vertical", 1, 2, 4, 2))
sketch13.addConstraint(Sketcher.Constraint("Vertical", 3, 2, 6, 2))
sketch13.addConstraint(Sketcher.Constraint("Equal", 3, 5))
sketch13.addConstraint(Sketcher.Constraint("DistanceX", 0, 2, 0, 1, Q("11 mm")))
sketch13.addConstraint(Sketcher.Constraint("DistanceY", 1, 2, 1, 1, Q("3 mm")))
sketch13.addConstraint(Sketcher.Constraint("DistanceX", -1, 1, 0, 2, Q("3 mm")))
sketch13.addConstraint(Sketcher.Constraint("DistanceY", 4, 2, 1, 2, Q("115 mm")))
sketch13.addConstraint(Sketcher.Constraint("DistanceY", -1, 1, 0, 2, Q("503.724509 mm")))
pocket8 = body.newObject("PartDesign::Pocket", "Pocket007")
pocket8.Profile = sketch13
pocket8.Type = "ThroughAll"

sketch14 = body.newObject("Sketcher::SketchObject", "Sketch013")
sketch14.AttachmentSupport = (doc.getObject("XZ_Plane"), [""])
sketch14.MapMode = "FlatFace"
sketch14.AttachmentOffset = App.Placement(Vector(0, 0, -3), App.Rotation())
sketch14.addGeometry(Part.LineSegment(Vector(-155.8, 385.7, 0), Vector(-155.8, 382.7, 0)), False)
sketch14.addGeometry(Part.LineSegment(Vector(-155.8, 382.7, 0), Vector(-152.8, 382.7, 0)), False)
sketch14.addGeometry(Part.LineSegment(Vector(-152.8, 382.7, 0), Vector(-152.8, 385.7, 0)), False)
sketch14.addGeometry(Part.LineSegment(Vector(-152.8, 385.7, 0), Vector(-155.8, 385.7, 0)), False)
sketch14.addConstraint(Sketcher.Constraint("Coincident", 0, 2, 1, 1))
sketch14.addConstraint(Sketcher.Constraint("Coincident", 1, 2, 2, 1))
sketch14.addConstraint(Sketcher.Constraint("Coincident", 2, 2, 3, 1))
sketch14.addConstraint(Sketcher.Constraint("Coincident", 3, 2, 0, 1))
sketch14.addConstraint(Sketcher.Constraint("Vertical", 0))
sketch14.addConstraint(Sketcher.Constraint("Horizontal", 1))
sketch14.addConstraint(Sketcher.Constraint("Vertical", 2))
sketch14.addConstraint(Sketcher.Constraint("Horizontal", 3))
sketch14.addConstraint(Sketcher.Constraint("Equal", 3, 0))
sketch14.addConstraint(Sketcher.Constraint("DistanceX", 1, 1, 1, 2, Q("3 mm")))
sketch14.addConstraint(Sketcher.Constraint("DistanceY", -1, 1, 0, 2, Q("382.724509 mm")))
sketch14.addConstraint(Sketcher.Constraint("DistanceX", 0, 2, -1, 1, Q("155.777568 mm")))
pocket9 = body.newObject("PartDesign::Pocket", "Pocket008")
pocket9.Profile = sketch14
pocket9.Type = "TwoLengths"
pocket9.Length = 4
pocket9.Length2 = 13
pocket9.Reversed = True

sketch15 = body.newObject("Sketcher::SketchObject", "Sketch014")
sketch15.AttachmentSupport = (doc.getObject("YZ_Plane"), [""])
sketch15.MapMode = "FlatFace"
sketch15.AttachmentOffset = App.Placement(Vector(0, 0, -122.748131), App.Rotation())
sketch15.addGeometry(Part.LineSegment(Vector(15, 401.7, 0), Vector(0, 401.7, 0)), False)
sketch15.addGeometry(Part.LineSegment(Vector(0, 401.7, 0), Vector(0, 398.7, 0)), False)
sketch15.addGeometry(Part.LineSegment(Vector(0, 398.7, 0), Vector(15, 398.7, 0)), False)
sketch15.addGeometry(Part.LineSegment(Vector(15, 398.7, 0), Vector(15, 401.7, 0)), False)
sketch15.addConstraint(Sketcher.Constraint("Coincident", 0, 2, 1, 1))
sketch15.addConstraint(Sketcher.Constraint("Coincident", 1, 2, 2, 1))
sketch15.addConstraint(Sketcher.Constraint("Coincident", 2, 2, 3, 1))
sketch15.addConstraint(Sketcher.Constraint("Coincident", 3, 2, 0, 1))
sketch15.addConstraint(Sketcher.Constraint("Horizontal", 0))
sketch15.addConstraint(Sketcher.Constraint("Vertical", 1))
sketch15.addConstraint(Sketcher.Constraint("Horizontal", 2))
sketch15.addConstraint(Sketcher.Constraint("Vertical", 3))
sketch15.addConstraint(Sketcher.Constraint("PointOnObject", 0, 2, -2))
sketch15.addConstraint(Sketcher.Constraint("DistanceX", 0, 2, 0, 1, Q("15 mm")))
sketch15.addConstraint(Sketcher.Constraint("DistanceY", 1, 2, 1, 1, Q("3 mm")))
sketch15.addConstraint(Sketcher.Constraint("DistanceY", -1, 1, 0, 2, Q("401.724509 mm")))
pocket10 = body.newObject("PartDesign::Pocket", "Pocket009")
pocket10.Profile = sketch15
pocket10.Type = "ThroughAll"
doc.recompute()

linearpattern = body.newObject("PartDesign::LinearPattern", "LinearPattern")
linearpattern.Originals = [pocket10]
linearpattern.Direction = (doc.getObject("Z_Axis"), [""])
linearpattern.Mode = "offset"
linearpattern.Offset = 5.733333
linearpattern.Occurrences = 16
body.Tip = linearpattern

sketch16 = body.newObject("Sketcher::SketchObject", "Sketch015")
sketch16.AttachmentSupport = (doc.getObject("XZ_Plane"), [""])
sketch16.MapMode = "FlatFace"
sketch16.addGeometry(Part.Circle(Vector(-155.7, 494.7, 0), Vector(0, 0, 1), 2), False)
sketch16.addGeometry(Part.Circle(Vector(-133.2, 391.7, 0), Vector(0, 0, 1), 2), False)
sketch16.addConstraint(Sketcher.Constraint("Equal", 0, 1))
sketch16.addConstraint(Sketcher.Constraint("Diameter", 0, Q("4 mm")))
sketch16.addConstraint(Sketcher.Constraint("DistanceY", 1, 3, 0, 3, Q("103 mm")))
sketch16.addConstraint(Sketcher.Constraint("DistanceX", 0, 3, 1, 3, Q("22.5 mm")))
sketch16.addConstraint(Sketcher.Constraint("DistanceX", 0, 3, -1, 1, Q("155.748131 mm")))
sketch16.addConstraint(Sketcher.Constraint("DistanceY", -1, 1, 0, 3, Q("494.724509 mm")))
doc.recompute()
hole5 = body.newObject("PartDesign::Hole", "Hole004")
hole5.Profile = sketch16
hole5.ThreadType = "None"
hole5.Diameter = 4
hole5.DepthType = "Dimension"
hole5.Depth = 5
hole5.DrillPoint = "Angled"
hole5.DrillPointAngle = 118

doc.recompute()
